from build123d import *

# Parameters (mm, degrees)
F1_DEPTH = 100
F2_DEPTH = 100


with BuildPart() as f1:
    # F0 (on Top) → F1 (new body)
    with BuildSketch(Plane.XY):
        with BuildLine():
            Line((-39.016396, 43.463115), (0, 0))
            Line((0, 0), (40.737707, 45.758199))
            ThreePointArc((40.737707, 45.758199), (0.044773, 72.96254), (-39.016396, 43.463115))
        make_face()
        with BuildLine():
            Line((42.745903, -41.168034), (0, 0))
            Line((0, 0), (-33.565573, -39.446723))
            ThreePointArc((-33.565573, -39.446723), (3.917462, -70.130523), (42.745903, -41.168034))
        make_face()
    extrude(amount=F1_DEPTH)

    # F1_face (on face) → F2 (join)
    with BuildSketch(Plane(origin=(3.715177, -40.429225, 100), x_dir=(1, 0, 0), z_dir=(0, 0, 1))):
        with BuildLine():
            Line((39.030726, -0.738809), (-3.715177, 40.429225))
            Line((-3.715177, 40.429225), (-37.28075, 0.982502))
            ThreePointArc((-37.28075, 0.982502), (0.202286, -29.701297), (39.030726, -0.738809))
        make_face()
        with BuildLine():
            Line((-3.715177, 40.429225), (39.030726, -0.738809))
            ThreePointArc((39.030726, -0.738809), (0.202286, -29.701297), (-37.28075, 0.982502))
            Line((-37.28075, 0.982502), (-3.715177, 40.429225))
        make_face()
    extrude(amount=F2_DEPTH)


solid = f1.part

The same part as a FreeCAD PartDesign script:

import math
import FreeCAD as App
import Part
import Sketcher

doc = App.newDocument("Part")
body = doc.addObject("PartDesign::Body", "Body")
body.AllowCompound = True

# Sketch on XY plane
sketch1 = body.newObject("Sketcher::SketchObject", "Sketch")
sketch1.AttachmentSupport = (doc.getObject("XY_Plane"), [""])
sketch1.MapMode = "FlatFace"
sketch1.addGeometry([
    Part.LineSegment(App.Vector(-39, 43, 0), App.Vector(0, 0, 0)),  # 0
    Part.LineSegment(App.Vector(0, 0, 0), App.Vector(41, 46, 0)),  # 1
    Part.ArcOfCircle(Part.Circle(App.Vector(1, 31, 0), App.Vector(0, 0, 1), 42), math.radians(21), math.radians(162)),  # 2
    Part.LineSegment(App.Vector(43, -41, 0), App.Vector(0, 0, 0)),  # 3
    Part.LineSegment(App.Vector(0, 0, 0), App.Vector(-34, -39, 0)),  # 4
    Part.ArcOfCircle(Part.Circle(App.Vector(5, -31, 0), App.Vector(0, 0, 1), 39), math.radians(-167), math.radians(-15)),  # 5
], False)
sketch1.addConstraint([
    Sketcher.Constraint("Coincident", 0, 2, 1, 1),
    Sketcher.Constraint("Coincident", 1, 2, 2, 1),
    Sketcher.Constraint("Coincident", 2, 2, 0, 1),
    Sketcher.Constraint("Coincident", 3, 2, 4, 1),
    Sketcher.Constraint("Coincident", 4, 2, 5, 1),
    Sketcher.Constraint("Coincident", 5, 2, 3, 1),
    Sketcher.Constraint("Coincident", 0, 2, -1, 1),
    Sketcher.Constraint("Coincident", 3, 2, -1, 1),
    Sketcher.Constraint("Radius", 2, 42.237046),
    Sketcher.Constraint("Radius", 5, 39.329804),
    Sketcher.Constraint("DistanceY", -1, 1, 1, 2, 45.758199),
    Sketcher.Constraint("DistanceX", 4, 2, 2, 3, 34.825299),
    Sketcher.Constraint("Distance", 0, 58.40652),
    Sketcher.Constraint("DistanceY", -1, 1, 2, 3, 30.742972),
    Sketcher.Constraint("DistanceY", 5, 3, -1, 1, 30.810721),
    Sketcher.Constraint("DistanceX", 2, 3, 5, 3, 3.544649),
    Sketcher.Constraint("DistanceX", 2, 2, 2, 3, 40.276122),
    Sketcher.Constraint("DistanceY", 5, 2, 4, 2, 1.721311),
])
pad1 = body.newObject("PartDesign::Pad", "Pad")
pad1.Profile = sketch1
pad1.Length = 100

# Sketch on XY plane
sketch2 = body.newObject("Sketcher::SketchObject", "Sketch001")
sketch2.AttachmentSupport = (doc.getObject("XY_Plane"), [""])
sketch2.MapMode = "FlatFace"
sketch2.AttachmentOffset = App.Placement(App.Vector(0, 0, 100), App.Rotation())
sketch2.addGeometry([
    Part.LineSegment(App.Vector(43, -41, 0), App.Vector(0, 0, 0)),
    Part.LineSegment(App.Vector(0, 0, 0), App.Vector(-34, -39, 0)),
    Part.ArcOfCircle(Part.Circle(App.Vector(5, -31, 0), App.Vector(0, 0, 1), 39), math.radians(-167), math.radians(-15)),
], False)
sketch2.addConstraint([
    Sketcher.Constraint("Coincident", 0, 2, 1, 1),
    Sketcher.Constraint("Coincident", 1, 2, 2, 1),
    Sketcher.Constraint("Coincident", 2, 2, 0, 1),
    Sketcher.Constraint("Coincident", 0, 2, -1, 1),
    Sketcher.Constraint("Radius", 2, 39.329804),
    Sketcher.Constraint("DistanceY", 2, 3, -1, 1, 30.810719),
    Sketcher.Constraint("DistanceX", 1, 2, 2, 3, 38.369948),
    Sketcher.Constraint("DistanceY", 2, 2, 1, 2, 1.721311),
    Sketcher.Constraint("Distance", 0, 59.346603),
])
pad2 = body.newObject("PartDesign::Pad", "Pad001")
pad2.Profile = sketch2
pad2.Length = 100

doc.recompute()
